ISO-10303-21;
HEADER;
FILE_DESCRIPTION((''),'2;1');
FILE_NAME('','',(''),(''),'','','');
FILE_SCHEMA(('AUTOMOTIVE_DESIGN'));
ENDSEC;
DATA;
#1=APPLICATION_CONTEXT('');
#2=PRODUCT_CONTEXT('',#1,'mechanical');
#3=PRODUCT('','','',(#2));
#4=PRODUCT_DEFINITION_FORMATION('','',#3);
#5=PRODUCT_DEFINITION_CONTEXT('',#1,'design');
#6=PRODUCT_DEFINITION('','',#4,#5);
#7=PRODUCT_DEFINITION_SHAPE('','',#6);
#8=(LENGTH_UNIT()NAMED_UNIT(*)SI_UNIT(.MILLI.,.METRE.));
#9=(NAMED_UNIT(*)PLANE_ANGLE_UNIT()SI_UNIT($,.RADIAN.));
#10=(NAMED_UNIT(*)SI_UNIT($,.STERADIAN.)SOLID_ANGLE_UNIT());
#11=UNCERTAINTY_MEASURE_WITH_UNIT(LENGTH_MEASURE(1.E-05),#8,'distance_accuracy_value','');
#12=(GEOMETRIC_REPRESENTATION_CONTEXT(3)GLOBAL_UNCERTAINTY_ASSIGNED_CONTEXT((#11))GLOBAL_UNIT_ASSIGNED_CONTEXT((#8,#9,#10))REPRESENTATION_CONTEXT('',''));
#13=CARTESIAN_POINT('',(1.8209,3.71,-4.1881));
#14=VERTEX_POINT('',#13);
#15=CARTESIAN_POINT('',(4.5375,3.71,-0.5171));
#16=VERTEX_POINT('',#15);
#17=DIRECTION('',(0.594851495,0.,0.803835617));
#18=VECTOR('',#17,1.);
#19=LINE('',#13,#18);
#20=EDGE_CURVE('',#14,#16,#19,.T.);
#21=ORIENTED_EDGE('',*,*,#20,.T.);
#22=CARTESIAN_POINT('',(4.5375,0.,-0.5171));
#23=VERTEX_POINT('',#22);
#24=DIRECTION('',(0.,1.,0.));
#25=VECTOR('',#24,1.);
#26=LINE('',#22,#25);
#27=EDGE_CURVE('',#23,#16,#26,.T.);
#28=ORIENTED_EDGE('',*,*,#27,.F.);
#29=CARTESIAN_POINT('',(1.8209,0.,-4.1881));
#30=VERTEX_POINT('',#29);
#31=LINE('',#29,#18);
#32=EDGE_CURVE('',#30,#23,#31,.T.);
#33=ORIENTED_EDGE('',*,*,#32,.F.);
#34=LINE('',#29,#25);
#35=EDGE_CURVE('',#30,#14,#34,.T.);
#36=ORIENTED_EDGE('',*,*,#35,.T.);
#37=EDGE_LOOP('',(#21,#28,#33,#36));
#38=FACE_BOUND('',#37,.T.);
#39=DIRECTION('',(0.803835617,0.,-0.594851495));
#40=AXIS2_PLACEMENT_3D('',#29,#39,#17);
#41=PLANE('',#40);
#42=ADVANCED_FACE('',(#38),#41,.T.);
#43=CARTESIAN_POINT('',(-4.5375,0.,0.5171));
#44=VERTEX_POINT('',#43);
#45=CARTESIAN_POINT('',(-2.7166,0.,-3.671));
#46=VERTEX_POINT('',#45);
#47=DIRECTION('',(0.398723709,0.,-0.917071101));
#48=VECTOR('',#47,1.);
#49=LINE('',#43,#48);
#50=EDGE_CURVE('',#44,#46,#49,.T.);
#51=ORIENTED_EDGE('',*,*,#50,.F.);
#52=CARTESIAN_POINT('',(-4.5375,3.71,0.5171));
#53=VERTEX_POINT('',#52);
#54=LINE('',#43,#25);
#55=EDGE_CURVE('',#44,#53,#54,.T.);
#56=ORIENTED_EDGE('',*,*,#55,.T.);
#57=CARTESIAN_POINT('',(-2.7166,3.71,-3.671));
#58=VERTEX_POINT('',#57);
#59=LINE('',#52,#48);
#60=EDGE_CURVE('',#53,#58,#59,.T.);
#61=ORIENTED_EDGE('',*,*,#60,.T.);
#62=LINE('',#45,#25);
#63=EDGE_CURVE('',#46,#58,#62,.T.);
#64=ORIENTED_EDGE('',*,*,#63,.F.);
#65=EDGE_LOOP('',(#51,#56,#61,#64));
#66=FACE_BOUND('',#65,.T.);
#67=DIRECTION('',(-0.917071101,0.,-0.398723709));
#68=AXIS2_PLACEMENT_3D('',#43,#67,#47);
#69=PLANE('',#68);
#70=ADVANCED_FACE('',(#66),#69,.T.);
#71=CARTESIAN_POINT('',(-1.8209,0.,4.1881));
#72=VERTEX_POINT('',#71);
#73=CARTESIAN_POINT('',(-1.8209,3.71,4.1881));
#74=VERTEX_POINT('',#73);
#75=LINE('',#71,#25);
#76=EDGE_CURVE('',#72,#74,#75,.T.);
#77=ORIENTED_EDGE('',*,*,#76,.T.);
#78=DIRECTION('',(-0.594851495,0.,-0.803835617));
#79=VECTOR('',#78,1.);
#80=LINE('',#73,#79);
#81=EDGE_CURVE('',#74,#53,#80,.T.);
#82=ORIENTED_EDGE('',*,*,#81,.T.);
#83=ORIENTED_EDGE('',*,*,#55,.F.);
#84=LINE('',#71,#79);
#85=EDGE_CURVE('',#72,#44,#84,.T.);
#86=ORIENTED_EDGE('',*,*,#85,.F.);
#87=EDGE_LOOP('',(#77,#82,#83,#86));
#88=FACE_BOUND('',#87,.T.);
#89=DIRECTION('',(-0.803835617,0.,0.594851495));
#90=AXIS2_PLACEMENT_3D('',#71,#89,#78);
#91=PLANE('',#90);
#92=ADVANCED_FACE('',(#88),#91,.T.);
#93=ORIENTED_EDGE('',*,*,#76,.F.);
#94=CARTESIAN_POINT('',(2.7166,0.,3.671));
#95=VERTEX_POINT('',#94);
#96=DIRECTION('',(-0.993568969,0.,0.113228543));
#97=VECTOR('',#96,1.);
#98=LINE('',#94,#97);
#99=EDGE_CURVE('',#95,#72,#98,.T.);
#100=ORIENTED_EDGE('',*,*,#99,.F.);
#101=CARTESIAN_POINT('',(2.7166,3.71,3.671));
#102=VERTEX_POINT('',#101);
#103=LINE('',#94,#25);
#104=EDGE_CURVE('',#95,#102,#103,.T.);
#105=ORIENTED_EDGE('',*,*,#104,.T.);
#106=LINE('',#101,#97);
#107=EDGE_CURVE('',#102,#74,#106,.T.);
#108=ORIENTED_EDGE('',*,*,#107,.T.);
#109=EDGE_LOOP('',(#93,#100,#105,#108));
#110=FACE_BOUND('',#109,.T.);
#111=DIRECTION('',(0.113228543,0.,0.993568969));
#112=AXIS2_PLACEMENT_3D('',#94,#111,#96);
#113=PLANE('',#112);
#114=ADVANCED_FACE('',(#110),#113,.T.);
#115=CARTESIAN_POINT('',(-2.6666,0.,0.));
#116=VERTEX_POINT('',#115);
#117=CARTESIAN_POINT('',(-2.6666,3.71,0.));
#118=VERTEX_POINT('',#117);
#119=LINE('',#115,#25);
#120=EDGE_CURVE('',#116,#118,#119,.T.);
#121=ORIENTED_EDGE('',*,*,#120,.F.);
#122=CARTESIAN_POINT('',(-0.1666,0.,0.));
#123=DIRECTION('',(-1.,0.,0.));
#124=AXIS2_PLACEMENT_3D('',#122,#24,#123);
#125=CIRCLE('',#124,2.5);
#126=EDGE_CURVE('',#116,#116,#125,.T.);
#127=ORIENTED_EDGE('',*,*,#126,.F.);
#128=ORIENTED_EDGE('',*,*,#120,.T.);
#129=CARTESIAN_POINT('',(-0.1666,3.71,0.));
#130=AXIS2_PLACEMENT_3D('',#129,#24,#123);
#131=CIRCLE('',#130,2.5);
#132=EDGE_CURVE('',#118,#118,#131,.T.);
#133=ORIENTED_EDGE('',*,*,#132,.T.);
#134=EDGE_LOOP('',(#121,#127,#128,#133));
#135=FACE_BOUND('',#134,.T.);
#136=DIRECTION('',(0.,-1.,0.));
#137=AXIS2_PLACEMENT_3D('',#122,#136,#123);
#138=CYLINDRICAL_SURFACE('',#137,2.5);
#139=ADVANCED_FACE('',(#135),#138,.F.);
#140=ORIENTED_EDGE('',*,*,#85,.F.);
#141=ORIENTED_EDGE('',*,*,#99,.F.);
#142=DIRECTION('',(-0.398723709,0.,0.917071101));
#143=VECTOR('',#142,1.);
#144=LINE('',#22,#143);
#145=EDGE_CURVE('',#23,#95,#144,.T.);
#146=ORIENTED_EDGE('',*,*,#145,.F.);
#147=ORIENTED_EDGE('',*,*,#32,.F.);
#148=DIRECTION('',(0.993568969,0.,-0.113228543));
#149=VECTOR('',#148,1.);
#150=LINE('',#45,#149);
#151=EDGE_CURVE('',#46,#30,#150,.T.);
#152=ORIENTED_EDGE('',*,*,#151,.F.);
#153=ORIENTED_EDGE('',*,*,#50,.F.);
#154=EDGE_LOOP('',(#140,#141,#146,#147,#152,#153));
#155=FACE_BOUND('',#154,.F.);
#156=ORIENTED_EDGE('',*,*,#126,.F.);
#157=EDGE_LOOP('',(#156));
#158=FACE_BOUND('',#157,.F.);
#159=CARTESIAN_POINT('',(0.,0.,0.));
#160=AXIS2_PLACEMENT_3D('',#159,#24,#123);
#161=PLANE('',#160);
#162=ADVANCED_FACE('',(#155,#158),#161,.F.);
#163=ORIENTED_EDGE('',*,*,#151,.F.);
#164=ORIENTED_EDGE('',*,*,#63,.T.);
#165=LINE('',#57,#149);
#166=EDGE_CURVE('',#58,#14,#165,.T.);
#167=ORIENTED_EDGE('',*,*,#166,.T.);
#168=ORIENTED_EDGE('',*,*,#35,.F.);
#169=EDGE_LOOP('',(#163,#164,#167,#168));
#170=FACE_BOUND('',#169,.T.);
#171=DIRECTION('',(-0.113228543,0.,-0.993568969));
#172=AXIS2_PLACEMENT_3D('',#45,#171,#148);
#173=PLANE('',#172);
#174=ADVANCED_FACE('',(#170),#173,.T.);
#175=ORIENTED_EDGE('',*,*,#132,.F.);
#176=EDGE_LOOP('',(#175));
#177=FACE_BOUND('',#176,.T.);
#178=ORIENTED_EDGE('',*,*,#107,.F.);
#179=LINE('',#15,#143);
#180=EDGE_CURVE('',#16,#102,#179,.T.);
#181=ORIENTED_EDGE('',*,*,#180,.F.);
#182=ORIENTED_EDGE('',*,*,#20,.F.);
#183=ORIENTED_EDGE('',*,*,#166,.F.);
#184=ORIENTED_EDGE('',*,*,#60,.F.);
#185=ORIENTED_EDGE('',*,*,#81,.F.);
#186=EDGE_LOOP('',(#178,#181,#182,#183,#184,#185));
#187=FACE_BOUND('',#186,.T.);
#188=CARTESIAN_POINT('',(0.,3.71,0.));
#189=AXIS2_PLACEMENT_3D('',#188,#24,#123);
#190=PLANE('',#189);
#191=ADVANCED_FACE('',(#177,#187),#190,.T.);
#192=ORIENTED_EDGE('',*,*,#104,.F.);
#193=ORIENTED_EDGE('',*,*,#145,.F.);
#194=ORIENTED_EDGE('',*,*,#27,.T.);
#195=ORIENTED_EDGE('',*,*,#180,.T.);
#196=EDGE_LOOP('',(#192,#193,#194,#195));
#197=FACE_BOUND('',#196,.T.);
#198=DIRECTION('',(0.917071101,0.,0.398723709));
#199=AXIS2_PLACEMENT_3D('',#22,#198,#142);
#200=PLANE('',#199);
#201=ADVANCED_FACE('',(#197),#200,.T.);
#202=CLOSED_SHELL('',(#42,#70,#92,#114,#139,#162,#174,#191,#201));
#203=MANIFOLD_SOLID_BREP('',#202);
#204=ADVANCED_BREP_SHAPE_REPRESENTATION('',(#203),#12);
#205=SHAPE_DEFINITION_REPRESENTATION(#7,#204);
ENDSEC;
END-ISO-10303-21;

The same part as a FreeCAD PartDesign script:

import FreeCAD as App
import Part
import Sketcher

doc = App.newDocument("Part")
body = doc.addObject("PartDesign::Body", "Body")

# Sketch on XZ plane
sketch1 = body.newObject("Sketcher::SketchObject", "Sketch")
sketch1.AttachmentSupport = (doc.getObject("XZ_Plane"), [""])
sketch1.MapMode = "FlatFace"
sketch1.addGeometry([
    Part.LineSegment(App.Vector(1.8209, -4.1881, 0), App.Vector(-2.7166, -3.671, 0)),  # 0
    Part.LineSegment(App.Vector(-2.7166, -3.671, 0), App.Vector(-4.5375, 0.5171, 0)),  # 1
    Part.LineSegment(App.Vector(-4.5375, 0.5171, 0), App.Vector(-1.8209, 4.1881, 0)),  # 2
    Part.LineSegment(App.Vector(-1.8209, 4.1881, 0), App.Vector(2.7166, 3.671, 0)),  # 3
    Part.LineSegment(App.Vector(2.7166, 3.671, 0), App.Vector(4.5375, -0.5171, 0)),  # 4
    Part.LineSegment(App.Vector(4.5375, -0.5171, 0), App.Vector(1.8209, -4.1881, 0)),  # 5
    Part.Circle(App.Vector(-0.1666, 0, 0), App.Vector(0, 0, 1), 2.5),  # 6
], False)
sketch1.addConstraint([
    Sketcher.Constraint("Coincident", 0, 2, 1, 1),
    Sketcher.Constraint("Coincident", 1, 2, 2, 1),
    Sketcher.Constraint("Coincident", 2, 2, 3, 1),
    Sketcher.Constraint("Coincident", 3, 2, 4, 1),
    Sketcher.Constraint("Coincident", 4, 2, 5, 1),
    Sketcher.Constraint("Coincident", 5, 2, 0, 1),
    Sketcher.Constraint("Symmetric", 0, 2, 3, 2, -1, 1),
    Sketcher.Constraint("Symmetric", 1, 2, 4, 2, -1, 1),
    Sketcher.Constraint("Symmetric", 2, 2, 5, 2, -1, 1),
    Sketcher.Constraint("PointOnObject", 6, 3, -1),
    Sketcher.Constraint("Equal", 0, 1),
    Sketcher.Constraint("Equal", 1, 2),
    Sketcher.Constraint("Diameter", 6, 5.0),
    Sketcher.Constraint("DistanceX", 0, 2, 6, 3, 2.55),
    Sketcher.Constraint("DistanceY", 0, 2, -1, 1, 3.671),
    Sketcher.Constraint("DistanceY", -1, 1, 1, 2, 0.517),
    Sketcher.Constraint("DistanceX", 2, 2, -1, 1, 1.821),
    Sketcher.Constraint("DistanceY", -1, 1, 2, 2, 4.188),
])
pad1 = body.newObject("PartDesign::Pad", "Pad")
pad1.Profile = sketch1
pad1.Length = 3.71
pad1.Reversed = True

doc.recompute()
